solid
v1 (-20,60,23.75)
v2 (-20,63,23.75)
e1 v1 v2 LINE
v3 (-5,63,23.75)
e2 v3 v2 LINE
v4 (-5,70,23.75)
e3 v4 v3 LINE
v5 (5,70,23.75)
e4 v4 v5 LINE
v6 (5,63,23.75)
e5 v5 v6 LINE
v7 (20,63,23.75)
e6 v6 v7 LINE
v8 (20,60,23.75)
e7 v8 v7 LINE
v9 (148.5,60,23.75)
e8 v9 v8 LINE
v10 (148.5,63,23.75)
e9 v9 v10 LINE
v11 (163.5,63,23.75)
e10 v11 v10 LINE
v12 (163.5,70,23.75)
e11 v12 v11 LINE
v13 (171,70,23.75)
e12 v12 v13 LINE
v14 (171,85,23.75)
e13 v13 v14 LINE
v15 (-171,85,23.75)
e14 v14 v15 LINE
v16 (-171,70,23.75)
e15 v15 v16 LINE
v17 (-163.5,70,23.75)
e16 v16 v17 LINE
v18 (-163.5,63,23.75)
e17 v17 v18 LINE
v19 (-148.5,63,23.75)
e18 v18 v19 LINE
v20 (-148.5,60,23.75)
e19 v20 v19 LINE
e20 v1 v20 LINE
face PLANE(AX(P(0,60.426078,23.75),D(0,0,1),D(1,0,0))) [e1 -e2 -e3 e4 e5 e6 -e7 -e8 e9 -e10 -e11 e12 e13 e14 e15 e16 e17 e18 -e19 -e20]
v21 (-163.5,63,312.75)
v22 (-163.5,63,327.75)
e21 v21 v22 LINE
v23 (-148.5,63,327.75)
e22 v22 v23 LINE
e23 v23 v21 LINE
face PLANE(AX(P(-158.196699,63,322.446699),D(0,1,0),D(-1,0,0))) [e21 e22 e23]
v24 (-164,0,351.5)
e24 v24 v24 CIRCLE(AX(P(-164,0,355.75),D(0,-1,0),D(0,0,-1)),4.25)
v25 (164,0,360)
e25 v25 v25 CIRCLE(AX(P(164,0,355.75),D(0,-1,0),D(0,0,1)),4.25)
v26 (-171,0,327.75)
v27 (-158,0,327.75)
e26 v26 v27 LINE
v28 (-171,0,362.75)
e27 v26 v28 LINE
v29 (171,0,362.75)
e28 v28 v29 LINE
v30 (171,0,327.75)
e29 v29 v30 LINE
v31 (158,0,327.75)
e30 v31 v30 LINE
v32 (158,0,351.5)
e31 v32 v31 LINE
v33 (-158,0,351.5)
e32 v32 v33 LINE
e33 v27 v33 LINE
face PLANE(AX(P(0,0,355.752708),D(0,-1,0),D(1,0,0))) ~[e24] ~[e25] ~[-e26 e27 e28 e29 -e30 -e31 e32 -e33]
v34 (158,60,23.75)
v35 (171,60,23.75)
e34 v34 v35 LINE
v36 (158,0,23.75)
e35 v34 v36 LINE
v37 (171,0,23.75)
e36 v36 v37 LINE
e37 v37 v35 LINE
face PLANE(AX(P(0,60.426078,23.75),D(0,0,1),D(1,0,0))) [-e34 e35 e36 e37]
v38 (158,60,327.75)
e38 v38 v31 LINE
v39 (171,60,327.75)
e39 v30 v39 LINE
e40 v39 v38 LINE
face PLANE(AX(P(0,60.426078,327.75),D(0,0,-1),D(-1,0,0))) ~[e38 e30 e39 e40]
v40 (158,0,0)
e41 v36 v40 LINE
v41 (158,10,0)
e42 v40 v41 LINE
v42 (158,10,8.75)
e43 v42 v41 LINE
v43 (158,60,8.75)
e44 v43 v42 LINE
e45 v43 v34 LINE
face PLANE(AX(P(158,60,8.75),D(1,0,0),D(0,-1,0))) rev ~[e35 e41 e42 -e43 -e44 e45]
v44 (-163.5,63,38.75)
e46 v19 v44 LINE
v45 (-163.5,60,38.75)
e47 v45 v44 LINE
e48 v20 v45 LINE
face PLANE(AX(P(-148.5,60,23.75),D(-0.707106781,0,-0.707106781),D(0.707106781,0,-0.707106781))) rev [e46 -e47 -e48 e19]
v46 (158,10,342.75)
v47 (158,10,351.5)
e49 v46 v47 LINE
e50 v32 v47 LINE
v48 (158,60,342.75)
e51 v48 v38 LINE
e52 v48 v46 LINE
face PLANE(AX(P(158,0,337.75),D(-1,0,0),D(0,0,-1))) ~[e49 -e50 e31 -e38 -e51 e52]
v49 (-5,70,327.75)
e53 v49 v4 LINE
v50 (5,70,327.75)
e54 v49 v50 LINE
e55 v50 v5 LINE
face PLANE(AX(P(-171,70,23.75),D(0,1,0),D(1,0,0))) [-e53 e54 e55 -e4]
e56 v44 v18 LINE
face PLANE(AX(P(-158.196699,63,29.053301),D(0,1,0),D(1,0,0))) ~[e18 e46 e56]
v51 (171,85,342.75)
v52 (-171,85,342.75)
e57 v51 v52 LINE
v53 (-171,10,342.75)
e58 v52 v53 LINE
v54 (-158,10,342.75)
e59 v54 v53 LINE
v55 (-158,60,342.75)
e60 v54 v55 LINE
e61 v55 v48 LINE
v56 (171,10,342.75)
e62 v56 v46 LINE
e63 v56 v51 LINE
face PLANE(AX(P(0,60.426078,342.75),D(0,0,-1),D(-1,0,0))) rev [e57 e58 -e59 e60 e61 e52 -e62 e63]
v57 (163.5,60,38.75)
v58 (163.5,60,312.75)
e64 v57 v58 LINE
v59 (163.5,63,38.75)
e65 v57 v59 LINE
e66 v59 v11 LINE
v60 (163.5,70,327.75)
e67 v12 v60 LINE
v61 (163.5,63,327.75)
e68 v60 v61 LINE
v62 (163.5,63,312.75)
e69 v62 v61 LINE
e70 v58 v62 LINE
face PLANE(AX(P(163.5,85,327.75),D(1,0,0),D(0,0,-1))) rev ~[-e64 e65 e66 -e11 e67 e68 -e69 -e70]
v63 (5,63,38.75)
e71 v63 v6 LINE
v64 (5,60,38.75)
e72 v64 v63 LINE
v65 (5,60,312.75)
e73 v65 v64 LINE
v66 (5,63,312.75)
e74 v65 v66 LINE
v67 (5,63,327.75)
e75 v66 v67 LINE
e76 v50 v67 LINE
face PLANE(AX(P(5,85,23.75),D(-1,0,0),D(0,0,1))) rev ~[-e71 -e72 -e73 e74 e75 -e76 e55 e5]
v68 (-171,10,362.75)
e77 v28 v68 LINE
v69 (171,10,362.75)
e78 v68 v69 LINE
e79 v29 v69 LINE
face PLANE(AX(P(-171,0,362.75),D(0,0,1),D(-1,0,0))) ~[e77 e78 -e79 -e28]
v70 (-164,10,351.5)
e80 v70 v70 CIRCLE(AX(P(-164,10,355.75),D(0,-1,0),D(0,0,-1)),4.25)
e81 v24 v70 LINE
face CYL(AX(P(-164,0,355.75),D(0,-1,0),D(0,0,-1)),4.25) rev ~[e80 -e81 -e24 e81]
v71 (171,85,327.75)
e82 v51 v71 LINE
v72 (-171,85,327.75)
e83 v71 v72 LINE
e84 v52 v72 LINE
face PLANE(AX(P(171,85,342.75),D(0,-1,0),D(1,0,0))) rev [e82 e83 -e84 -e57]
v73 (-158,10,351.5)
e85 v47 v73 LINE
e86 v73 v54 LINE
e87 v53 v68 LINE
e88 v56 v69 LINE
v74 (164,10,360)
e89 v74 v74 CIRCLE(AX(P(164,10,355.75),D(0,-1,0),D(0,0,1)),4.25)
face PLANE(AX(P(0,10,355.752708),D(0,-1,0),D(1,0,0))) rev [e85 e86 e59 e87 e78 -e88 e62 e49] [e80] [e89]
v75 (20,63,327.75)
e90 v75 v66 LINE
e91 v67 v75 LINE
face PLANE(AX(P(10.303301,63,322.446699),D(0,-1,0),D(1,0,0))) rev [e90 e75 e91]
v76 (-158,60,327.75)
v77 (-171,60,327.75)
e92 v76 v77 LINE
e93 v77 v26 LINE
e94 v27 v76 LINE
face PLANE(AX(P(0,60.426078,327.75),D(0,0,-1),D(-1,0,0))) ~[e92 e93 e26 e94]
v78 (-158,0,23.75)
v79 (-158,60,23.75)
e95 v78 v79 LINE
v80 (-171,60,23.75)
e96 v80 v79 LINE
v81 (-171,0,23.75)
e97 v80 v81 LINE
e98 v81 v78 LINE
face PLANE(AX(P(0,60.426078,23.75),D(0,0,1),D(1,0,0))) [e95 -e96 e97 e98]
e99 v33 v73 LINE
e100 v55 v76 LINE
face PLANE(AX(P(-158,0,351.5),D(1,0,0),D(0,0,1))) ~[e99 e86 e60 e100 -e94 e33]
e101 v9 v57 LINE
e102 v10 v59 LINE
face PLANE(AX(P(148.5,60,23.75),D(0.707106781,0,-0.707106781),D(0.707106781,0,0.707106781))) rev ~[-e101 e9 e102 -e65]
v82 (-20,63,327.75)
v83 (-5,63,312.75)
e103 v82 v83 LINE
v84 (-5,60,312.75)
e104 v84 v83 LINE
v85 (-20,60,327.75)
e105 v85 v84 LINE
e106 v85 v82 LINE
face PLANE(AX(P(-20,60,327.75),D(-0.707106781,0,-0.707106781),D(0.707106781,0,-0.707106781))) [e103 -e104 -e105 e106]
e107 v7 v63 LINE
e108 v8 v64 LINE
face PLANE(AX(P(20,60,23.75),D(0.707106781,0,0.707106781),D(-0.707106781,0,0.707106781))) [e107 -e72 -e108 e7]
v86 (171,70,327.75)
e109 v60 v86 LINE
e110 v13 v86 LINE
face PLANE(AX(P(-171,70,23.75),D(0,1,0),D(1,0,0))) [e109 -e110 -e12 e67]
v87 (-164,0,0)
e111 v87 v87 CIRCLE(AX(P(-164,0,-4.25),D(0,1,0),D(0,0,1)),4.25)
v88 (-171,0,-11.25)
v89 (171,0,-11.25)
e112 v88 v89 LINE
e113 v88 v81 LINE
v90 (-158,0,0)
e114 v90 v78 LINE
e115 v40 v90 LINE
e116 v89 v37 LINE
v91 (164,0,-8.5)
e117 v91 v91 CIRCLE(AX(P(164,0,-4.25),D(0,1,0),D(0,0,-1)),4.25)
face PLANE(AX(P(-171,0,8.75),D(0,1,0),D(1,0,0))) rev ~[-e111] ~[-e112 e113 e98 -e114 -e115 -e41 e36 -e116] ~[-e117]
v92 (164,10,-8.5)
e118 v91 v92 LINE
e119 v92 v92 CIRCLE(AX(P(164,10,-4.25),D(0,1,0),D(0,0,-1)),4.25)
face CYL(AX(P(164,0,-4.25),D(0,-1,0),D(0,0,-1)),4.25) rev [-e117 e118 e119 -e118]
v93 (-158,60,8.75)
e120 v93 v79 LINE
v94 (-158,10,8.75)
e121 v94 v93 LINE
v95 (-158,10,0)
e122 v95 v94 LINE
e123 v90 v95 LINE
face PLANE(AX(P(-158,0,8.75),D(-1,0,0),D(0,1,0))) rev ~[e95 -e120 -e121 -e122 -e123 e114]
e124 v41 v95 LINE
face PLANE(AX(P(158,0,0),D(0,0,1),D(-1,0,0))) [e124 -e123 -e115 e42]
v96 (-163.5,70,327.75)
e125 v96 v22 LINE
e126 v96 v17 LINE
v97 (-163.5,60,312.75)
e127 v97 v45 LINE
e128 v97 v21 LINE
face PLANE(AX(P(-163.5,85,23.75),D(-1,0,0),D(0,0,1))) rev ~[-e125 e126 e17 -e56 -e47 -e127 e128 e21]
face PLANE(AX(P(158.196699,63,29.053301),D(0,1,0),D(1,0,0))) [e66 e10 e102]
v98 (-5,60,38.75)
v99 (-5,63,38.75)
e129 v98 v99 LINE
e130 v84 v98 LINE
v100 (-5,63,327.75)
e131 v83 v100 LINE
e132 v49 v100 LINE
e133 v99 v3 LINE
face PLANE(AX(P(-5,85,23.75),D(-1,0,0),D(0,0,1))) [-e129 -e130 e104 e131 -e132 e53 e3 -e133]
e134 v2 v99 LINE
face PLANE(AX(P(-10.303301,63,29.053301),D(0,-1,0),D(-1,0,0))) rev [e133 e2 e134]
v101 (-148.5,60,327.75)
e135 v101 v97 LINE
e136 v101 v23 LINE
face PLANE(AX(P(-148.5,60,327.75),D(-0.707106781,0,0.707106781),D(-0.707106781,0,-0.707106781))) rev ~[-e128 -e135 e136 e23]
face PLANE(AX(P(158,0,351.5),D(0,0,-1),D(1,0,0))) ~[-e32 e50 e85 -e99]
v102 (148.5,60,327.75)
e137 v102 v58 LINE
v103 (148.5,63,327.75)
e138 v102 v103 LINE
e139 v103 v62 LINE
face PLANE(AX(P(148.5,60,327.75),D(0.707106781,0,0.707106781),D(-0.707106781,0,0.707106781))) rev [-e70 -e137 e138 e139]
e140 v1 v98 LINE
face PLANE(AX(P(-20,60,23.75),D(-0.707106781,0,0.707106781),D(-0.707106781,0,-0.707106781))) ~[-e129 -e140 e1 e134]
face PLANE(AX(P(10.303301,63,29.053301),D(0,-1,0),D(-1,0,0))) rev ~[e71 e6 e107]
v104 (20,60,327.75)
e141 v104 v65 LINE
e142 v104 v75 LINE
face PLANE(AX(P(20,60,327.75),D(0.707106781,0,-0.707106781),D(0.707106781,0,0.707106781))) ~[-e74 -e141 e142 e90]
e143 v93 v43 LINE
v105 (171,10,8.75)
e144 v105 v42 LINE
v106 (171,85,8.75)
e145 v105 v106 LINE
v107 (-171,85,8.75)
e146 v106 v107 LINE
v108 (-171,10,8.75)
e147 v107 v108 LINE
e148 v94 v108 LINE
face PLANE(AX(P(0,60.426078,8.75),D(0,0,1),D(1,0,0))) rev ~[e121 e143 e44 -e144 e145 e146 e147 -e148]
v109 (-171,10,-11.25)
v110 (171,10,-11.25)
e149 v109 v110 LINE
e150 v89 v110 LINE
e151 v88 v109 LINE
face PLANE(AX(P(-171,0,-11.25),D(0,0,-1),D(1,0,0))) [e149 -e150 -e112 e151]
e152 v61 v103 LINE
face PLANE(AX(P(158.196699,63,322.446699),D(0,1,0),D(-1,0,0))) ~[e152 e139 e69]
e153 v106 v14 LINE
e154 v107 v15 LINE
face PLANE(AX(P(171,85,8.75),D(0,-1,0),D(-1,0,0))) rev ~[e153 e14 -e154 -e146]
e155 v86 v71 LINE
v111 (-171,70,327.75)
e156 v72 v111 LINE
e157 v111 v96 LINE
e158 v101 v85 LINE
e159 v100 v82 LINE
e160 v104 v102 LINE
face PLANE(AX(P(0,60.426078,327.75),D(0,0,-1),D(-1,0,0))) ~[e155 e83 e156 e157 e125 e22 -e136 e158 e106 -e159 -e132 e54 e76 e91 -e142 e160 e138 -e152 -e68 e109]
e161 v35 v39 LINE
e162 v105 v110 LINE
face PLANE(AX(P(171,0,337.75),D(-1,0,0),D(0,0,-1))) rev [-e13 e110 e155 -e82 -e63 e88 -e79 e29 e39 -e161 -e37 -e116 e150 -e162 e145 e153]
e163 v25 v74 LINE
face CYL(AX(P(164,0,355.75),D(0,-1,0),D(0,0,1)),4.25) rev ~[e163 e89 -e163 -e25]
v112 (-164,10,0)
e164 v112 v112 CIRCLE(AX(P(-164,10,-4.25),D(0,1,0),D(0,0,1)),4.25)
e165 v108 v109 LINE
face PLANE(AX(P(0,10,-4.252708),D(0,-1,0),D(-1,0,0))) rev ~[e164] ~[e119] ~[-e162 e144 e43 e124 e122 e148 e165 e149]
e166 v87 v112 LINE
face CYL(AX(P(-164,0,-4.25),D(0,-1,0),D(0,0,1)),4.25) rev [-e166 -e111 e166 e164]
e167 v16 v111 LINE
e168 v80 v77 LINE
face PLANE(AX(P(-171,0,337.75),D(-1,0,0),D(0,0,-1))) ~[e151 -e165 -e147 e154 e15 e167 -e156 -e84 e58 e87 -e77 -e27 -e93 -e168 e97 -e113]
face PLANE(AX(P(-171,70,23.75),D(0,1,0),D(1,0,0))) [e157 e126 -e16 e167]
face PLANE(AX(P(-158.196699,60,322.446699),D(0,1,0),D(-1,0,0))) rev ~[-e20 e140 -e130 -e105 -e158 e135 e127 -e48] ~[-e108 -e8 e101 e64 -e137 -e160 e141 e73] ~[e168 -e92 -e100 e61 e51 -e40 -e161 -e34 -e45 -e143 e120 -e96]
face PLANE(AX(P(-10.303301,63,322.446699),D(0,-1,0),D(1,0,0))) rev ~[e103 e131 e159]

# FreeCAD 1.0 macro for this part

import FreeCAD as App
import Part
import Sketcher

V = App.Vector
Q = App.Units.Quantity


def add_polygon(sketch, points):
    """Adds a closed chain of lines whose ends are joined by coincident constraints."""
    first, n = sketch.GeometryCount, len(points)
    for a, b in zip(points, points[1:] + points[:1]):
        sketch.addGeometry(Part.LineSegment(App.Vector(*a, 0), App.Vector(*b, 0)), False)
    for i in range(n):
        sketch.addConstraint(Sketcher.Constraint("Coincident", first + i, 2, first + (i + 1) % n, 1))

doc = App.newDocument("Part")
body = doc.addObject("PartDesign::Body", "Body")

sketch1 = doc.addObject("Sketcher::SketchObject", "Sketch")
body.addObject(sketch1)
sketch1.AttachmentSupport = (doc.XZ_Plane, [""])
sketch1.MapMode = "FlatFace"
add_polygon(sketch1, [(171, -11.2), (-171, -11.2), (-171, 13.8), (-158, 13.8), (-158, 0), (158, 0), (158, 13.8), (171, 13.8)])
sketch1.addGeometry(Part.Circle(V(164, -4.2, 0), V(0, 0, 1), 4.2), False)
sketch1.addGeometry(Part.Circle(V(-164, -4.2, 0), V(0, 0, 1), 4.2), False)
sketch1.addConstraint(Sketcher.Constraint("Horizontal", 0))
sketch1.addConstraint(Sketcher.Constraint("Vertical", 1))
sketch1.addConstraint(Sketcher.Constraint("Horizontal", 2))
sketch1.addConstraint(Sketcher.Constraint("Vertical", 3))
sketch1.addConstraint(Sketcher.Constraint("Horizontal", 4))
sketch1.addConstraint(Sketcher.Constraint("Vertical", 5))
sketch1.addConstraint(Sketcher.Constraint("Horizontal", 6))
sketch1.addConstraint(Sketcher.Constraint("Vertical", 7))
sketch1.addConstraint(Sketcher.Constraint("Equal", 8, 9))
sketch1.addConstraint(Sketcher.Constraint("Symmetric", 3, 2, 4, 2, -1, 1))
sketch1.addConstraint(Sketcher.Constraint("Symmetric", 8, 3, 9, 3, -2))
sketch1.addConstraint(Sketcher.Constraint("Symmetric", 1, 2, 6, 2, -2))
sketch1.addConstraint(Sketcher.Constraint("Diameter", 8, Q("8.5 mm")))
sketch1.addConstraint(Sketcher.Constraint("DistanceX", 0, 2, 0, 1, Q("342 mm")))
sketch1.addConstraint(Sketcher.Constraint("DistanceX", 2, 1, 2, 2, Q("13 mm")))
sketch1.addConstraint(Sketcher.Constraint("DistanceY", 1, 1, 1, 2, Q("25 mm")))
sketch1.addConstraint(Sketcher.Constraint("DistanceX", -1, 1, 8, 3, Q("164 mm")))
sketch1.addConstraint(Sketcher.Constraint("DistanceY", 0, 2, 9, 3, Q("7 mm")))
sketch1.addConstraint(Sketcher.Constraint("DistanceY", 3, 2, 3, 1, Q("13.75 mm")))
pad1 = doc.addObject("PartDesign::Pad", "Pad")
body.addObject(pad1)
pad1.Profile = sketch1
pad1.Length = 10
pad1.Reversed = True

sketch2 = doc.addObject("Sketcher::SketchObject", "Sketch001")
body.addObject(sketch2)
sketch2.AttachmentSupport = (doc.XY_Plane, [""])
sketch2.MapMode = "FlatFace"
sketch2.AttachmentOffset = App.Placement(V(0, 0, 8.75), App.Rotation())
add_polygon(sketch2, [(-171, 85), (-171, 0), (-158, 0), (-158, 60), (158, 60), (158, 0), (171, 0), (171, 85)])
sketch2.addConstraint(Sketcher.Constraint("Vertical", 0))
sketch2.addConstraint(Sketcher.Constraint("Horizontal", 1))
sketch2.addConstraint(Sketcher.Constraint("Vertical", 2))
sketch2.addConstraint(Sketcher.Constraint("Horizontal", 3))
sketch2.addConstraint(Sketcher.Constraint("Vertical", 4))
sketch2.addConstraint(Sketcher.Constraint("Horizontal", 5))
sketch2.addConstraint(Sketcher.Constraint("Vertical", 6))
sketch2.addConstraint(Sketcher.Constraint("Horizontal", 7))
sketch2.addConstraint(Sketcher.Constraint("Symmetric", 1, 2, 4, 2, -1, 1))
sketch2.addConstraint(Sketcher.Constraint("Symmetric", 0, 2, 5, 2, -2))
sketch2.addConstraint(Sketcher.Constraint("DistanceX", 1, 1, 1, 2, Q("13 mm")))
sketch2.addConstraint(Sketcher.Constraint("DistanceX", 3, 1, 3, 2, Q("316 mm")))
sketch2.addConstraint(Sketcher.Constraint("DistanceY", 0, 2, 0, 1, Q("85 mm")))
sketch2.addConstraint(Sketcher.Constraint("DistanceY", 2, 1, 2, 2, Q("60 mm")))
pad2 = doc.addObject("PartDesign::Pad", "Pad001")
body.addObject(pad2)
pad2.Profile = sketch2
pad2.Length = 15

sketch3 = doc.addObject("Sketcher::SketchObject", "Sketch002")
body.addObject(sketch3)
sketch3.AttachmentSupport = (doc.XY_Plane, [""])
sketch3.MapMode = "FlatFace"
sketch3.AttachmentOffset = App.Placement(V(0, 0, 23.75), App.Rotation())
add_polygon(sketch3, [(-171, 70), (-171, 60), (171, 60), (171, 70)])
sketch3.addConstraint(Sketcher.Constraint("Vertical", 0))
sketch3.addConstraint(Sketcher.Constraint("Horizontal", 1))
sketch3.addConstraint(Sketcher.Constraint("Vertical", 2))
sketch3.addConstraint(Sketcher.Constraint("Horizontal", 3))
sketch3.addConstraint(Sketcher.Constraint("DistanceX", 1, 1, 1, 2, Q("342 mm")))
sketch3.addConstraint(Sketcher.Constraint("DistanceY", 0, 2, 0, 1, Q("10 mm")))
sketch3.addConstraint(Sketcher.Constraint("DistanceX", 0, 2, -1, 1, Q("171 mm")))
sketch3.addConstraint(Sketcher.Constraint("DistanceY", -1, 1, 0, 2, Q("60 mm")))
pad3 = doc.addObject("PartDesign::Pad", "Pad002")
body.addObject(pad3)
pad3.Profile = sketch3
pad3.Length = 304

sketch4 = doc.addObject("Sketcher::SketchObject", "Sketch003")
body.addObject(sketch4)
sketch4.AttachmentSupport = (doc.XZ_Plane, [""])
sketch4.MapMode = "FlatFace"
sketch4.AttachmentOffset = App.Placement(V(0, 0, -85), App.Rotation())
add_polygon(sketch4, [(-5, 24), (-164, 24), (-164, 328), (-5, 328)])
sketch4.addConstraint(Sketcher.Constraint("Horizontal", 0))
sketch4.addConstraint(Sketcher.Constraint("Vertical", 1))
sketch4.addConstraint(Sketcher.Constraint("Horizontal", 2))
sketch4.addConstraint(Sketcher.Constraint("Vertical", 3))
sketch4.addConstraint(Sketcher.Constraint("DistanceY", 1, 1, 1, 2, Q("304 mm")))
sketch4.addConstraint(Sketcher.Constraint("DistanceX", 0, 2, 0, 1, Q("158.5 mm")))
sketch4.addConstraint(Sketcher.Constraint("DistanceX", 2, 2, -1, 1, Q("5 mm")))
sketch4.addConstraint(Sketcher.Constraint("DistanceY", -1, 1, 0, 2, Q("23.75 mm")))
pocket1 = doc.addObject("PartDesign::Pocket", "Pocket")
body.addObject(pocket1)
pocket1.Profile = sketch4
pocket1.Length = 25
pocket1.Reversed = True

sketch5 = doc.addObject("Sketcher::SketchObject", "Sketch004")
body.addObject(sketch5)
sketch5.AttachmentSupport = (doc.XZ_Plane, [""])
sketch5.MapMode = "FlatFace"
sketch5.AttachmentOffset = App.Placement(V(0, 0, -85), App.Rotation())
add_polygon(sketch5, [(164, 328), (164, 24), (5, 24), (5, 328)])
sketch5.addConstraint(Sketcher.Constraint("Vertical", 0))
sketch5.addConstraint(Sketcher.Constraint("Horizontal", 1))
sketch5.addConstraint(Sketcher.Constraint("Vertical", 2))
sketch5.addConstraint(Sketcher.Constraint("Horizontal", 3))
sketch5.addConstraint(Sketcher.Constraint("DistanceY", 0, 2, 0, 1, Q("304 mm")))
sketch5.addConstraint(Sketcher.Constraint("DistanceX", 1, 2, 1, 1, Q("158.5 mm")))
sketch5.addConstraint(Sketcher.Constraint("DistanceX", -1, 1, 1, 2, Q("5 mm")))
sketch5.addConstraint(Sketcher.Constraint("DistanceY", -1, 1, 0, 2, Q("23.75 mm")))
pocket2 = doc.addObject("PartDesign::Pocket", "Pocket001")
body.addObject(pocket2)
pocket2.Profile = sketch5
pocket2.Length = 25
pocket2.Reversed = True
doc.recompute()

datumplane = doc.addObject("PartDesign::Plane", "DatumPlane")
body.addObject(datumplane)
datumplane.AttachmentSupport = (doc.XY_Plane, [""])
datumplane.MapMode = "FlatFace"
datumplane.AttachmentOffset = App.Placement(V(0, 0, 175.75), App.Rotation())
mirrored = doc.addObject("PartDesign::Mirrored", "Mirrored")
body.addObject(mirrored)
mirrored.Originals = [pad2]
mirrored.MirrorPlane = (datumplane, [""])
body.Tip = mirrored
doc.recompute()

datumplane2 = doc.addObject("PartDesign::Plane", "DatumPlane001")
body.addObject(datumplane2)
datumplane2.AttachmentSupport = (doc.XY_Plane, [""])
datumplane2.MapMode = "FlatFace"
datumplane2.AttachmentOffset = App.Placement(V(0, 0, 175.75), App.Rotation())
mirrored2 = doc.addObject("PartDesign::Mirrored", "Mirrored001")
body.addObject(mirrored2)
mirrored2.Originals = [pad1]
mirrored2.MirrorPlane = (datumplane2, [""])
body.Tip = mirrored2

sketch6 = doc.addObject("Sketcher::SketchObject", "Sketch005")
body.addObject(sketch6)
sketch6.AttachmentSupport = (doc.XZ_Plane, [""])
sketch6.MapMode = "FlatFace"
sketch6.AttachmentOffset = App.Placement(V(0, 0, -60), App.Rotation())
add_polygon(sketch6, [(148, 24), (164, 24), (164, 39)])
add_polygon(sketch6, [(5, 24), (20, 24), (5, 39)])
sketch6.addConstraint(Sketcher.Constraint("Horizontal", 0))
sketch6.addConstraint(Sketcher.Constraint("Vertical", 1))
sketch6.addConstraint(Sketcher.Constraint("Horizontal", 3))
sketch6.addConstraint(Sketcher.Constraint("Vertical", 5))
sketch6.addConstraint(Sketcher.Constraint("Perpendicular", 2, 4))
sketch6.addConstraint(Sketcher.Constraint("Horizontal", 2, 2, 3, 2))
sketch6.addConstraint(Sketcher.Constraint("Horizontal", 1, 2, 4, 2))
sketch6.addConstraint(Sketcher.Constraint("Equal", 0, 3))
sketch6.addConstraint(Sketcher.Constraint("DistanceX", 0, 1, 0, 2, Q("15 mm")))
sketch6.addConstraint(Sketcher.Constraint("DistanceX", -1, 1, 3, 2, Q("20 mm")))
sketch6.addConstraint(Sketcher.Constraint("DistanceX", -1, 1, 0, 2, Q("163.5 mm")))
sketch6.addConstraint(Sketcher.Constraint("DistanceY", -1, 1, 0, 2, Q("23.75 mm")))
pad4 = doc.addObject("PartDesign::Pad", "Pad003")
body.addObject(pad4)
pad4.Profile = sketch6
pad4.Length = 3
pad4.Reversed = True
doc.recompute()

datumplane3 = doc.addObject("PartDesign::Plane", "DatumPlane002")
body.addObject(datumplane3)
datumplane3.AttachmentSupport = (doc.XY_Plane, [""])
datumplane3.MapMode = "FlatFace"
datumplane3.AttachmentOffset = App.Placement(V(0, 0, 175.75), App.Rotation())
mirrored3 = doc.addObject("PartDesign::Mirrored", "Mirrored002")
body.addObject(mirrored3)
mirrored3.Originals = [pad4]
mirrored3.MirrorPlane = (datumplane3, [""])
body.Tip = mirrored3
doc.recompute()

mirrored4 = doc.addObject("PartDesign::Mirrored", "Mirrored003")
body.addObject(mirrored4)
mirrored4.Originals = [pad4]
mirrored4.MirrorPlane = (doc.YZ_Plane, [""])
body.Tip = mirrored4

sketch7 = doc.addObject("Sketcher::SketchObject", "Sketch006")
body.addObject(sketch7)
sketch7.AttachmentSupport = (doc.XZ_Plane, [""])
sketch7.MapMode = "FlatFace"
sketch7.AttachmentOffset = App.Placement(V(0, 0, -60), App.Rotation())
add_polygon(sketch7, [(-148, 328), (-164, 328), (-164, 313)])
add_polygon(sketch7, [(-5, 328), (-20, 328), (-5, 313)])
sketch7.addConstraint(Sketcher.Constraint("Horizontal", 0))
sketch7.addConstraint(Sketcher.Constraint("Vertical", 1))
sketch7.addConstraint(Sketcher.Constraint("Horizontal", 3))
sketch7.addConstraint(Sketcher.Constraint("Vertical", 5))
sketch7.addConstraint(Sketcher.Constraint("Perpendicular", 2, 4))
sketch7.addConstraint(Sketcher.Constraint("Horizontal", 2, 2, 3, 2))
sketch7.addConstraint(Sketcher.Constraint("Horizontal", 1, 2, 4, 2))
sketch7.addConstraint(Sketcher.Constraint("Equal", 0, 3))
sketch7.addConstraint(Sketcher.Constraint("DistanceX", 0, 2, 0, 1, Q("15 mm")))
sketch7.addConstraint(Sketcher.Constraint("DistanceX", 3, 2, -1, 1, Q("20 mm")))
sketch7.addConstraint(Sketcher.Constraint("DistanceX", 0, 2, -1, 1, Q("163.5 mm")))
sketch7.addConstraint(Sketcher.Constraint("DistanceY", -1, 1, 0, 2, Q("327.75 mm")))
pad5 = doc.addObject("PartDesign::Pad", "Pad004")
body.addObject(pad5)
pad5.Profile = sketch7
pad5.Length = 3
pad5.Reversed = True

doc.recompute()
